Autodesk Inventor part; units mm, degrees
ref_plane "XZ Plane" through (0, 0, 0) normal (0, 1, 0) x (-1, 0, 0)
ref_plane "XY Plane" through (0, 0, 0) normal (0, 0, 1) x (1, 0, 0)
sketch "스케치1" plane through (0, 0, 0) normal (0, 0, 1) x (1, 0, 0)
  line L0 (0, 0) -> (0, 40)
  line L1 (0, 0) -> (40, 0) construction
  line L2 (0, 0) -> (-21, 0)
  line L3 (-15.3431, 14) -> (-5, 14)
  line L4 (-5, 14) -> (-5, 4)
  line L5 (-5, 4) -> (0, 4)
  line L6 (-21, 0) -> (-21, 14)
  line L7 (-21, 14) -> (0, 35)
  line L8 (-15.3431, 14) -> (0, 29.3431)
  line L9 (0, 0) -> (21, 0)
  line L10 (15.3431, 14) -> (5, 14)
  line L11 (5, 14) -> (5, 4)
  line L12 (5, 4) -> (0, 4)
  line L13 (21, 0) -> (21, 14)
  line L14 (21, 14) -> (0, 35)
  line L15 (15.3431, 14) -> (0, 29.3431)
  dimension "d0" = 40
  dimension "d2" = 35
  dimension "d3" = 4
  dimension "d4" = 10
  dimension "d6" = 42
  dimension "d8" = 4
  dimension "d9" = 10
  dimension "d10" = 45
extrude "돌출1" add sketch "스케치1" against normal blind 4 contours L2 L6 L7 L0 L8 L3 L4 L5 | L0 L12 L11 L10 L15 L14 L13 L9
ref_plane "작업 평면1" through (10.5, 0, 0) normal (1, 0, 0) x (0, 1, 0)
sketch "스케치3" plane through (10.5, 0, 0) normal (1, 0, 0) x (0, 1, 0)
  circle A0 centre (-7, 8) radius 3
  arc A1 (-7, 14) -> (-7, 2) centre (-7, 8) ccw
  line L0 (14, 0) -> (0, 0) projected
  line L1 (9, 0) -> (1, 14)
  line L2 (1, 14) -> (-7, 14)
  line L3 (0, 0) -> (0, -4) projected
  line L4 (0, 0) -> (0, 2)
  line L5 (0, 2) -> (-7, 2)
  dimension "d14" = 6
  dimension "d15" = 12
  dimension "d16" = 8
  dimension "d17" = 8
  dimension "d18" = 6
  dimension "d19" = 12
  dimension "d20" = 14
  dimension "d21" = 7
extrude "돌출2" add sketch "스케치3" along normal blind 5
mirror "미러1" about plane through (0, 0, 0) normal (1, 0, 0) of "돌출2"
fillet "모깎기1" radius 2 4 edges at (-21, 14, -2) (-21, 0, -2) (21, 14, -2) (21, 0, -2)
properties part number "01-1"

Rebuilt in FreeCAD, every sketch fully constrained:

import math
import FreeCAD as App
import Part
import Sketcher
Q = App.Units.Quantity


def edges_at(feature, points):
    """Names of the edges that pass closest to the given points."""
    edges = feature.Shape.Edges
    near = lambda p: min(range(len(edges)), key=lambda i: edges[i].distToShape(Part.Vertex(*p))[0])
    return sorted({f"Edge{near(p) + 1}" for p in points})

doc = App.newDocument("Part")
body = doc.addObject("PartDesign::Body", "Body")

# Sketch on XY plane
sketch1 = body.newObject("Sketcher::SketchObject", "Sketch")
sketch1.AttachmentSupport = (doc.getObject("XY_Plane"), [""])
sketch1.MapMode = "FlatFace"
sketch1.addGeometry(Part.LineSegment(App.Vector(-21, 0, 0), App.Vector(21, 0, 0)), False)
sketch1.addGeometry(Part.LineSegment(App.Vector(21, 0, 0), App.Vector(21, 14, 0)), False)
sketch1.addGeometry(Part.LineSegment(App.Vector(21, 14, 0), App.Vector(0, 35, 0)), False)
sketch1.addGeometry(Part.LineSegment(App.Vector(0, 35, 0), App.Vector(-21, 14, 0)), False)
sketch1.addGeometry(Part.LineSegment(App.Vector(-21, 14, 0), App.Vector(-21, 0, 0)), False)
sketch1.addGeometry(Part.LineSegment(App.Vector(-15, 14, 0), App.Vector(0, 29, 0)), False)
sketch1.addGeometry(Part.LineSegment(App.Vector(0, 29, 0), App.Vector(15, 14, 0)), False)
sketch1.addGeometry(Part.LineSegment(App.Vector(15, 14, 0), App.Vector(5, 14, 0)), False)
sketch1.addGeometry(Part.LineSegment(App.Vector(5, 14, 0), App.Vector(5, 4, 0)), False)
sketch1.addGeometry(Part.LineSegment(App.Vector(5, 4, 0), App.Vector(-5, 4, 0)), False)
sketch1.addGeometry(Part.LineSegment(App.Vector(-5, 4, 0), App.Vector(-5, 14, 0)), False)
sketch1.addGeometry(Part.LineSegment(App.Vector(-5, 14, 0), App.Vector(-15, 14, 0)), False)
sketch1.addConstraint(Sketcher.Constraint("Coincident", 0, 2, 1, 1))
sketch1.addConstraint(Sketcher.Constraint("Coincident", 1, 2, 2, 1))
sketch1.addConstraint(Sketcher.Constraint("Coincident", 2, 2, 3, 1))
sketch1.addConstraint(Sketcher.Constraint("Coincident", 3, 2, 4, 1))
sketch1.addConstraint(Sketcher.Constraint("Coincident", 4, 2, 0, 1))
sketch1.addConstraint(Sketcher.Constraint("Coincident", 5, 2, 6, 1))
sketch1.addConstraint(Sketcher.Constraint("Coincident", 6, 2, 7, 1))
sketch1.addConstraint(Sketcher.Constraint("Coincident", 7, 2, 8, 1))
sketch1.addConstraint(Sketcher.Constraint("Coincident", 8, 2, 9, 1))
sketch1.addConstraint(Sketcher.Constraint("Coincident", 9, 2, 10, 1))
sketch1.addConstraint(Sketcher.Constraint("Coincident", 10, 2, 11, 1))
sketch1.addConstraint(Sketcher.Constraint("Coincident", 11, 2, 5, 1))
sketch1.addConstraint(Sketcher.Constraint("Horizontal", 0))
sketch1.addConstraint(Sketcher.Constraint("Vertical", 1))
sketch1.addConstraint(Sketcher.Constraint("Vertical", 4))
sketch1.addConstraint(Sketcher.Constraint("Horizontal", 7))
sketch1.addConstraint(Sketcher.Constraint("Vertical", 8))
sketch1.addConstraint(Sketcher.Constraint("Horizontal", 9))
sketch1.addConstraint(Sketcher.Constraint("Vertical", 10))
sketch1.addConstraint(Sketcher.Constraint("Horizontal", 11))
sketch1.addConstraint(Sketcher.Constraint("Symmetric", 0, 2, 4, 2, -1, 1))
sketch1.addConstraint(Sketcher.Constraint("Symmetric", 7, 2, 10, 2, -2))
sketch1.addConstraint(Sketcher.Constraint("PointOnObject", 2, 2, -2))
sketch1.addConstraint(Sketcher.Constraint("PointOnObject", 5, 2, -2))
sketch1.addConstraint(Sketcher.Constraint("Perpendicular", 2, 3))
sketch1.addConstraint(Sketcher.Constraint("Parallel", 3, 5))
sketch1.addConstraint(Sketcher.Constraint("Perpendicular", 5, 6))
sketch1.addConstraint(Sketcher.Constraint("Horizontal", 1, 2, 3, 2))
sketch1.addConstraint(Sketcher.Constraint("Horizontal", 3, 2, 6, 2))
sketch1.addConstraint(Sketcher.Constraint("Equal", 9, 8))
sketch1.addConstraint(Sketcher.Constraint("DistanceX", 0, 1, 0, 2, Q("42 mm")))
sketch1.addConstraint(Sketcher.Constraint("DistanceX", 9, 2, 9, 1, Q("10 mm")))
sketch1.addConstraint(Sketcher.Constraint("DistanceY", -1, 1, 2, 2, Q("35 mm")))
sketch1.addConstraint(Sketcher.Constraint("DistanceX", 7, 2, 7, 1, Q("10.343 mm")))
pad1 = body.newObject("PartDesign::Pad", "Pad")
pad1.Profile = sketch1
pad1.Length = 4
pad1.Reversed = True

# Sketch on YZ plane
sketch2 = body.newObject("Sketcher::SketchObject", "Sketch001")
sketch2.AttachmentSupport = (doc.getObject("YZ_Plane"), [""])
sketch2.MapMode = "FlatFace"
sketch2.AttachmentOffset = App.Placement(App.Vector(0, 0, 10.5), App.Rotation())
sketch2.addGeometry(Part.LineSegment(App.Vector(1, 14, 0), App.Vector(-7, 14, 0)), False)
sketch2.addGeometry(Part.ArcOfCircle(Part.Circle(App.Vector(-7, 8, 0), App.Vector(0, 0, 1), 6), math.radians(90), math.radians(270)), False)
sketch2.addGeometry(Part.LineSegment(App.Vector(-7, 2, 0), App.Vector(0, 2, 0)), False)
sketch2.addGeometry(Part.LineSegment(App.Vector(0, 2, 0), App.Vector(0, 0, 0)), False)
sketch2.addGeometry(Part.LineSegment(App.Vector(0, 0, 0), App.Vector(9, 0, 0)), False)
sketch2.addGeometry(Part.LineSegment(App.Vector(9, 0, 0), App.Vector(1, 14, 0)), False)
sketch2.addGeometry(Part.Circle(App.Vector(-7, 8, 0), App.Vector(0, 0, 1), 3), False)
sketch2.addConstraint(Sketcher.Constraint("Tangent", 0, 2, 1, 1))
sketch2.addConstraint(Sketcher.Constraint("Tangent", 1, 2, 2, 1))
sketch2.addConstraint(Sketcher.Constraint("Coincident", 2, 2, 3, 1))
sketch2.addConstraint(Sketcher.Constraint("Coincident", 3, 2, 4, 1))
sketch2.addConstraint(Sketcher.Constraint("Coincident", 4, 2, 5, 1))
sketch2.addConstraint(Sketcher.Constraint("Coincident", 5, 2, 0, 1))
sketch2.addConstraint(Sketcher.Constraint("Horizontal", 0))
sketch2.addConstraint(Sketcher.Constraint("Horizontal", 2))
sketch2.addConstraint(Sketcher.Constraint("Vertical", 3))
sketch2.addConstraint(Sketcher.Constraint("Horizontal", 4))
sketch2.addConstraint(Sketcher.Constraint("Coincident", 3, 2, -1, 1))
sketch2.addConstraint(Sketcher.Constraint("Coincident", 6, 3, 1, 3))
sketch2.addConstraint(Sketcher.Constraint("Diameter", 6, Q("6 mm")))
sketch2.addConstraint(Sketcher.Constraint("Radius", 1, Q("6 mm")))
sketch2.addConstraint(Sketcher.Constraint("DistanceX", 0, 2, 0, 1, Q("8 mm")))
sketch2.addConstraint(Sketcher.Constraint("DistanceX", 2, 1, 2, 2, Q("7 mm")))
sketch2.addConstraint(Sketcher.Constraint("DistanceY", -1, 1, 1, 3, Q("8 mm")))
sketch2.addConstraint(Sketcher.Constraint("DistanceX", 4, 1, 4, 2, Q("9 mm")))
pad2 = body.newObject("PartDesign::Pad", "Pad001")
pad2.Profile = sketch2
pad2.Length = 5
doc.recompute()

mirrored = body.newObject("PartDesign::Mirrored", "Mirrored")
mirrored.Originals = [pad2]
mirrored.MirrorPlane = (doc.getObject("YZ_Plane"), [""])
body.Tip = mirrored
doc.recompute()

fillet = body.newObject("PartDesign::Fillet", "Fillet")
fillet.Base = (mirrored, edges_at(mirrored, [
    (-21, 14, -2),
    (-21, 0, -2),
    (21, 14, -2),
    (21, 0, -2),
]))
fillet.Radius = 2

doc.recompute()
